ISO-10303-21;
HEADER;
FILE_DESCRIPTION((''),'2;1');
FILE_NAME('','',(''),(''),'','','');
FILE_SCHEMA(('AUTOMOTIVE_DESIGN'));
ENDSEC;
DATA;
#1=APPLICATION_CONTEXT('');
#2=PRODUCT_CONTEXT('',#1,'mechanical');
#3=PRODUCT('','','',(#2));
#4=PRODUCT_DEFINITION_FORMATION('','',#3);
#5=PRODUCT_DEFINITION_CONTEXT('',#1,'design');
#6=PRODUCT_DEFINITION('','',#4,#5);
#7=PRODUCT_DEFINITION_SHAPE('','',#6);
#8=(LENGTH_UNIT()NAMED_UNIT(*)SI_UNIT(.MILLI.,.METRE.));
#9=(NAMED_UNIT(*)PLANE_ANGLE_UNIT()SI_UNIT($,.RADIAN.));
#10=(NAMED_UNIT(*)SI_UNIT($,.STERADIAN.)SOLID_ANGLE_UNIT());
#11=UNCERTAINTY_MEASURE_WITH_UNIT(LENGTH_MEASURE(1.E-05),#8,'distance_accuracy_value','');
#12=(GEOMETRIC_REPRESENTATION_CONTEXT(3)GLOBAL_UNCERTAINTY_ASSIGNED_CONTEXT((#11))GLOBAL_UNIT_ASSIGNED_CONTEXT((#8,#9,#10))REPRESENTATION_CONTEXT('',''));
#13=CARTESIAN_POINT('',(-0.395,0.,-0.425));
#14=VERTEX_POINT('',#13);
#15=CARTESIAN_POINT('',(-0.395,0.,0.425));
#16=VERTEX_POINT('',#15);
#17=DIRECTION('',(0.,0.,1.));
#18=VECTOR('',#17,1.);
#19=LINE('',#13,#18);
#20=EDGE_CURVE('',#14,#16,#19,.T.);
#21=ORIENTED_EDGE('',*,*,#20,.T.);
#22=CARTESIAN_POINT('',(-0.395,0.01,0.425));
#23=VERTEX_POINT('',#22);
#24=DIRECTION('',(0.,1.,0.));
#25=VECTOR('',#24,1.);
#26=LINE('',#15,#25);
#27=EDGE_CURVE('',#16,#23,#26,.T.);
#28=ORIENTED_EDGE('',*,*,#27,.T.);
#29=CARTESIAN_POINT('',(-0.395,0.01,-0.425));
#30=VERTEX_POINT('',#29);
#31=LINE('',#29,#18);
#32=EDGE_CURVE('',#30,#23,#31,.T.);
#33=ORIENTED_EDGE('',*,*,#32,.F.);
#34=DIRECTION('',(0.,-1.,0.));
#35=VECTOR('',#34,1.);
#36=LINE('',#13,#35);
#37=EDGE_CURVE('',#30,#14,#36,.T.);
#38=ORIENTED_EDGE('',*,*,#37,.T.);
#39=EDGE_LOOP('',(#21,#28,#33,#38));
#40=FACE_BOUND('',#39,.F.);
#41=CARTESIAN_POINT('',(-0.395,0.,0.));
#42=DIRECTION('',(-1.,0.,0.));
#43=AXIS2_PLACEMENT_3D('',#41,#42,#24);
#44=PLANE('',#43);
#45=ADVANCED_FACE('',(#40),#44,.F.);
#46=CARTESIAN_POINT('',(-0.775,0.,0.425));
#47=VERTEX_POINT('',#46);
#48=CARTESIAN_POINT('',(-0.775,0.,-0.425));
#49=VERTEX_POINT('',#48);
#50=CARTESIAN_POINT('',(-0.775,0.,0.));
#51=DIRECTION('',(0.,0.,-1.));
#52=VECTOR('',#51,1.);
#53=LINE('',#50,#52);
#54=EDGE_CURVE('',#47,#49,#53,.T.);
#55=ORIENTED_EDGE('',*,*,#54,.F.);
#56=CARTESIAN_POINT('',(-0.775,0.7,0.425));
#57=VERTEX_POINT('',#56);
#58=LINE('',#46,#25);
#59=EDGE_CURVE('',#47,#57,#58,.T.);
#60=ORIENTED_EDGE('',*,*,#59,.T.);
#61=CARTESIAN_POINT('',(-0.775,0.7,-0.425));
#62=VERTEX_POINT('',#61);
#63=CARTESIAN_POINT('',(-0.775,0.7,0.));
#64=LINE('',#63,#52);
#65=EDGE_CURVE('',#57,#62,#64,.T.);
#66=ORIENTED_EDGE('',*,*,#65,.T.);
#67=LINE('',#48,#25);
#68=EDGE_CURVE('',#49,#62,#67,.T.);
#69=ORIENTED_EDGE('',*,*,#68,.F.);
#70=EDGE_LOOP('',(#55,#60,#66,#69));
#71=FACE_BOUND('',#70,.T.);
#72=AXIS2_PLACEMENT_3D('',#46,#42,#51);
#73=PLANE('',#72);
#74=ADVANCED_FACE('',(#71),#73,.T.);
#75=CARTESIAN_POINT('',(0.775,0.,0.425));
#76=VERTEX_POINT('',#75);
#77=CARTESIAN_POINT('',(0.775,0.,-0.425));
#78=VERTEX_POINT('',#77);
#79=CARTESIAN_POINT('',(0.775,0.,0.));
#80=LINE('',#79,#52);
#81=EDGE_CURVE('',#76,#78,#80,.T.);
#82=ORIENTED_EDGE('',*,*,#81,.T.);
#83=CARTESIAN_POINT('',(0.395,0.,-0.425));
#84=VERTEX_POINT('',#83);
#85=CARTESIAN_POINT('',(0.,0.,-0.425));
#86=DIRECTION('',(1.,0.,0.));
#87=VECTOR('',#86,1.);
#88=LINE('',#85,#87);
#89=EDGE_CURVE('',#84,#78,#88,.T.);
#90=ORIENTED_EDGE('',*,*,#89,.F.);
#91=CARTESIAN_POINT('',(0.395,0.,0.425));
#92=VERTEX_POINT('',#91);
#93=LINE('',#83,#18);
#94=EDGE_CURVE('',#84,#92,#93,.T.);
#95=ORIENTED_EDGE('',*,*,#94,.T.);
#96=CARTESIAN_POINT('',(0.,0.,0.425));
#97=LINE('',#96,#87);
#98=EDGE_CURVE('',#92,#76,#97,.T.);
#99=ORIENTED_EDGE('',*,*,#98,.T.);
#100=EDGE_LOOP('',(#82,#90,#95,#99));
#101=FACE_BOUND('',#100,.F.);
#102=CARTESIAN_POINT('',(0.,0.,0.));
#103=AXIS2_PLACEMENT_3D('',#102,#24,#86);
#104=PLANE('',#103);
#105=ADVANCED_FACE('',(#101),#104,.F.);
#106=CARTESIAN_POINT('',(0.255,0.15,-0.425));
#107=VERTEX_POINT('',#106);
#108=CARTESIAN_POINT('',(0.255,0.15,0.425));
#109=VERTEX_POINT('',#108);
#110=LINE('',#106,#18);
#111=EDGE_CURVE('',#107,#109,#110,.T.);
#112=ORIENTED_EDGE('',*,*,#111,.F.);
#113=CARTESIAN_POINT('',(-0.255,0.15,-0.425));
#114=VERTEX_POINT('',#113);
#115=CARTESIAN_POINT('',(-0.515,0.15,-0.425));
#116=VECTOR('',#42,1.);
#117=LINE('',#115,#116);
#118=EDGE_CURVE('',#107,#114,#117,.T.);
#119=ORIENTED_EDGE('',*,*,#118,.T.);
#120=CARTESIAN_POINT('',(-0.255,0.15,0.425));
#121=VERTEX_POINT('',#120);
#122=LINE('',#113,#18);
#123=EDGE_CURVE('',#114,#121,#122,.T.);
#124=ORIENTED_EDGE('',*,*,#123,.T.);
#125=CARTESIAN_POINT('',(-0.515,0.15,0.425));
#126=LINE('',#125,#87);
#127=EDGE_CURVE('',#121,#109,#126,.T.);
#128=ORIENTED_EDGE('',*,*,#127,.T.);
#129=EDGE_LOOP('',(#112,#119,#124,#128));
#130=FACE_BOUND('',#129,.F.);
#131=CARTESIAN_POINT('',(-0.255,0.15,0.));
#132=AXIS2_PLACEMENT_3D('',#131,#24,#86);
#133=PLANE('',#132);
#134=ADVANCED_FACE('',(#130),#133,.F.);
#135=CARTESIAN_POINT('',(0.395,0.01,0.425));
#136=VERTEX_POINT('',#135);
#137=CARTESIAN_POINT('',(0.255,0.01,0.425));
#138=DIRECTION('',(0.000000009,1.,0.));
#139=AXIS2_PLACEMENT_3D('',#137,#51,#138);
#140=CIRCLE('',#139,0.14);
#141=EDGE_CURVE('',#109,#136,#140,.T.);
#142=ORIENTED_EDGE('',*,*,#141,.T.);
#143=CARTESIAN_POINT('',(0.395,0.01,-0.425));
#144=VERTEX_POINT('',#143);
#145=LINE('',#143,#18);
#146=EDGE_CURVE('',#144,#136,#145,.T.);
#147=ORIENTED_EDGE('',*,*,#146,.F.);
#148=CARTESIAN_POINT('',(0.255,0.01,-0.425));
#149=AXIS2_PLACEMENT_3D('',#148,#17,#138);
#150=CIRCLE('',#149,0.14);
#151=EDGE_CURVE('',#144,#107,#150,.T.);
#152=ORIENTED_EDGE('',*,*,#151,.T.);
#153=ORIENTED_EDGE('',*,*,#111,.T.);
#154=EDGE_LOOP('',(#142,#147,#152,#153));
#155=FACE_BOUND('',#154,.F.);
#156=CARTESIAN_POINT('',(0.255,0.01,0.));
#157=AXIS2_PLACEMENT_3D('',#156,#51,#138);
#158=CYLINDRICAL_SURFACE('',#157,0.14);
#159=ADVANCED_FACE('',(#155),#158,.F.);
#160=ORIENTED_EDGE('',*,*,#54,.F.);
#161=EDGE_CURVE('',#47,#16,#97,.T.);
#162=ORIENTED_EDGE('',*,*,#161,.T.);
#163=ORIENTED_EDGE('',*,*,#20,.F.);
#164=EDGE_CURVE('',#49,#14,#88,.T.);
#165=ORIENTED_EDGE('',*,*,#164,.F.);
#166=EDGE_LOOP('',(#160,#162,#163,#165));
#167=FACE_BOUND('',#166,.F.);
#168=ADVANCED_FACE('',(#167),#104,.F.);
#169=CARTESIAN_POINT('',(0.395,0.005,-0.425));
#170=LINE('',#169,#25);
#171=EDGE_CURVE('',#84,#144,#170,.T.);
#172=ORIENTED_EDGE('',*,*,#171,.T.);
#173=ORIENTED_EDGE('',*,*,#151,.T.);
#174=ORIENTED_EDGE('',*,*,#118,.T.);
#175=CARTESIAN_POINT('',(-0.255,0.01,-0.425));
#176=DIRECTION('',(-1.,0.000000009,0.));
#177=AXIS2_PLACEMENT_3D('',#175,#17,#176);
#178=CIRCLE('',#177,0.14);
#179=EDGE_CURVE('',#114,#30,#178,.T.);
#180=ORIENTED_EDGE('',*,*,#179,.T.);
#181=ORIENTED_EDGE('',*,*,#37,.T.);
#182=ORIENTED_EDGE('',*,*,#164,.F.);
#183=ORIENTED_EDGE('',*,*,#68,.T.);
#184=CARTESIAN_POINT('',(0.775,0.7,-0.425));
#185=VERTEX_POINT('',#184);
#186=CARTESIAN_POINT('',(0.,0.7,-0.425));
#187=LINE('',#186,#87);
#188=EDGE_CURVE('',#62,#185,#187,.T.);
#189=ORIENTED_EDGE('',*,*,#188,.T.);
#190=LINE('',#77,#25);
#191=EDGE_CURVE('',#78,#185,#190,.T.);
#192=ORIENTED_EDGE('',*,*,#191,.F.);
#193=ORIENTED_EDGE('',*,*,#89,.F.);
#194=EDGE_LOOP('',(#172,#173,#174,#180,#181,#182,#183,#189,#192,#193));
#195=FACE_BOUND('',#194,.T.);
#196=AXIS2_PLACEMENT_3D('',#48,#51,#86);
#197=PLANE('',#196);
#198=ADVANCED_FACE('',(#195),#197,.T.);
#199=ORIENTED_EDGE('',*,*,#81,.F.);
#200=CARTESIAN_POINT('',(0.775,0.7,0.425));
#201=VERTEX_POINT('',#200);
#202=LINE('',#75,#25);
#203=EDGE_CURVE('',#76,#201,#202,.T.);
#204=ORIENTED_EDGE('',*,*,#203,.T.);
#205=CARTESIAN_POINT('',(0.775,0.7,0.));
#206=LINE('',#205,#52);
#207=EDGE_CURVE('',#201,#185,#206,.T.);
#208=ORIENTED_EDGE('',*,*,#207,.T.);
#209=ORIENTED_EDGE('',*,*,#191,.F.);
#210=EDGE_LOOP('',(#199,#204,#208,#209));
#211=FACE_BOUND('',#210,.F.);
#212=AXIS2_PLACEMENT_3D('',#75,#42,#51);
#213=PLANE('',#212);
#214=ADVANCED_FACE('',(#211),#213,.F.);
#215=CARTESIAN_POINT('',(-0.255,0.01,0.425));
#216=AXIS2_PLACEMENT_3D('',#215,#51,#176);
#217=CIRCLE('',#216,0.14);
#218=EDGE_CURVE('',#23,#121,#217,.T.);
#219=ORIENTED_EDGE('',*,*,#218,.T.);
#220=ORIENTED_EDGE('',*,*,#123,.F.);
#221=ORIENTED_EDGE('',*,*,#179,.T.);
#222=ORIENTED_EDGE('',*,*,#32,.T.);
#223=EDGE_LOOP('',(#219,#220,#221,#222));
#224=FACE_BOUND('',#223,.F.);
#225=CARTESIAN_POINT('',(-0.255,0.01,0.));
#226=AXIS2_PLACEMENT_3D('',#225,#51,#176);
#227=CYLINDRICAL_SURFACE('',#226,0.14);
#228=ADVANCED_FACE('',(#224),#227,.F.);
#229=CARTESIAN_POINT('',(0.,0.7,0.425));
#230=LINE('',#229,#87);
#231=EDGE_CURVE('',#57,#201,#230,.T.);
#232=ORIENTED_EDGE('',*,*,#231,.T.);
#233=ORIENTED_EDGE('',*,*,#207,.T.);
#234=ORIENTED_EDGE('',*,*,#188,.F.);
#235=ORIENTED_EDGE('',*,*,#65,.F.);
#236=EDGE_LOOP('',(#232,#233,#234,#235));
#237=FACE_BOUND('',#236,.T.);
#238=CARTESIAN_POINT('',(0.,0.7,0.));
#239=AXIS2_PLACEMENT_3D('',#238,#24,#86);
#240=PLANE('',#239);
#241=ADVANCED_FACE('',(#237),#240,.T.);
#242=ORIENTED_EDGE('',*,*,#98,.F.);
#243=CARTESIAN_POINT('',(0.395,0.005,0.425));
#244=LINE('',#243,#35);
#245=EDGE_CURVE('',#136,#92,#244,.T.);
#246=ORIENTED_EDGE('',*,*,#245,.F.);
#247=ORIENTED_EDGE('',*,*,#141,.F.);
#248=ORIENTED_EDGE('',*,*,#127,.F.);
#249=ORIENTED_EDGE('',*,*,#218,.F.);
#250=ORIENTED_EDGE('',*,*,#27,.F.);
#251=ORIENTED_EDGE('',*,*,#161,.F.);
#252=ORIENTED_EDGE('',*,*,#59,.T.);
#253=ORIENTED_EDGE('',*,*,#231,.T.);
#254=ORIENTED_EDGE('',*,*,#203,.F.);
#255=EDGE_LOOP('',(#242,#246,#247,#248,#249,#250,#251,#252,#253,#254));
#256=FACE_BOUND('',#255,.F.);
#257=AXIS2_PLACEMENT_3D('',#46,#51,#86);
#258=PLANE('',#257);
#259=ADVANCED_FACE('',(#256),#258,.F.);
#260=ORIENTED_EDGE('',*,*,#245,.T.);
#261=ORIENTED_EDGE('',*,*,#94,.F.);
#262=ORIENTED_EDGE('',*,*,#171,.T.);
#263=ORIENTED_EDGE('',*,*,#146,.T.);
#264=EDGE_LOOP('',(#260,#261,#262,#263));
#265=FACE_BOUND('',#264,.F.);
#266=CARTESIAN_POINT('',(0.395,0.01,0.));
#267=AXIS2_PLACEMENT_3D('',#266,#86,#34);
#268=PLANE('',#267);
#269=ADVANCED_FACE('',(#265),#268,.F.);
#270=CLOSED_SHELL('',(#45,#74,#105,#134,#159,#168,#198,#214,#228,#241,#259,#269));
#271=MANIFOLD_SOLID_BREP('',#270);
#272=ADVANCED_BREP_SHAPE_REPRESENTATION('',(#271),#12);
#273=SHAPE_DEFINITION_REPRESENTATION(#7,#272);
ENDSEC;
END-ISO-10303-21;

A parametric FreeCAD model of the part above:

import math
import FreeCAD as App
import Part
import Sketcher
from FreeCAD import Vector

doc = App.newDocument("Part")
body = doc.addObject("PartDesign::Body", "Body")

sketch1 = doc.addObject("Sketcher::SketchObject", "Sketch")
body.addObject(sketch1)
sketch1.AttachmentSupport = (doc.XZ_Plane, [""])
sketch1.MapMode = "FlatFace"
sketch1.addGeometry([
    Part.LineSegment(Vector(-0.8, -0.4, 0), Vector(-0.8, 0.4, 0)),
    Part.LineSegment(Vector(-0.8, 0.4, 0), Vector(0.8, 0.4, 0)),
    Part.LineSegment(Vector(0.8, 0.4, 0), Vector(0.8, -0.4, 0)),
    Part.LineSegment(Vector(0.8, -0.4, 0), Vector(-0.8, -0.4, 0)),
], False)
sketch1.addConstraint([
    Sketcher.Constraint("Coincident", 0, 2, 1, 1),
    Sketcher.Constraint("Coincident", 1, 2, 2, 1),
    Sketcher.Constraint("Coincident", 2, 2, 3, 1),
    Sketcher.Constraint("Coincident", 3, 2, 0, 1),
    Sketcher.Constraint("Vertical", 0),
    Sketcher.Constraint("Horizontal", 1),
    Sketcher.Constraint("Vertical", 2),
    Sketcher.Constraint("Horizontal", 3),
    Sketcher.Constraint("Symmetric", 0, 2, 2, 2, -1, 1),
    Sketcher.Constraint("DistanceX", 1, 1, 1, 2, 1.55),
    Sketcher.Constraint("DistanceY", 0, 1, 0, 2, 0.85),
])
pad1 = doc.addObject("PartDesign::Pad", "Pad")
body.addObject(pad1)
pad1.Profile = sketch1
pad1.Length = 0.7
pad1.Reversed = True

sketch2 = doc.addObject("Sketcher::SketchObject", "Sketch001")
body.addObject(sketch2)
sketch2.AttachmentSupport = (doc.XY_Plane, [""])
sketch2.MapMode = "FlatFace"
sketch2.addGeometry([
    Part.LineSegment(Vector(0.255, 0.15, 0), Vector(-0.255, 0.15, 0)),
    Part.ArcOfCircle(Part.Circle(Vector(-0.255, 0.01, 0), Vector(0, 0, 1), 0.14), math.radians(90), math.radians(180)),
    Part.LineSegment(Vector(-0.395, 0.01, 0), Vector(-0.395, 0, 0)),
    Part.LineSegment(Vector(-0.395, 0, 0), Vector(0.395, 0, 0)),
    Part.LineSegment(Vector(0.395, 0, 0), Vector(0.395, 0.01, 0)),
    Part.ArcOfCircle(Part.Circle(Vector(0.255, 0.01, 0), Vector(0, 0, 1), 0.14), math.radians(0), math.radians(90)),
], False)
sketch2.addConstraint([
    Sketcher.Constraint("Tangent", 0, 2, 1, 1),
    Sketcher.Constraint("Tangent", 1, 2, 2, 1),
    Sketcher.Constraint("Coincident", 2, 2, 3, 1),
    Sketcher.Constraint("Coincident", 3, 2, 4, 1),
    Sketcher.Constraint("Tangent", 4, 2, 5, 1),
    Sketcher.Constraint("Tangent", 5, 2, 0, 1),
    Sketcher.Constraint("Horizontal", 0),
    Sketcher.Constraint("Vertical", 2),
    Sketcher.Constraint("Horizontal", 3),
    Sketcher.Constraint("Vertical", 4),
    Sketcher.Constraint("Equal", 1, 5),
    Sketcher.Constraint("Symmetric", 2, 2, 3, 2, -1, 1),
    Sketcher.Constraint("Radius", 1, 0.14),
    Sketcher.Constraint("DistanceX", 0, 2, 0, 1, 0.51),
    Sketcher.Constraint("DistanceY", 2, 2, 2, 1, 0.01),
])
pocket1 = doc.addObject("PartDesign::Pocket", "Pocket")
body.addObject(pocket1)
pocket1.Profile = sketch2
pocket1.Type = "ThroughAll"
pocket1.Midplane = True

doc.recompute()
